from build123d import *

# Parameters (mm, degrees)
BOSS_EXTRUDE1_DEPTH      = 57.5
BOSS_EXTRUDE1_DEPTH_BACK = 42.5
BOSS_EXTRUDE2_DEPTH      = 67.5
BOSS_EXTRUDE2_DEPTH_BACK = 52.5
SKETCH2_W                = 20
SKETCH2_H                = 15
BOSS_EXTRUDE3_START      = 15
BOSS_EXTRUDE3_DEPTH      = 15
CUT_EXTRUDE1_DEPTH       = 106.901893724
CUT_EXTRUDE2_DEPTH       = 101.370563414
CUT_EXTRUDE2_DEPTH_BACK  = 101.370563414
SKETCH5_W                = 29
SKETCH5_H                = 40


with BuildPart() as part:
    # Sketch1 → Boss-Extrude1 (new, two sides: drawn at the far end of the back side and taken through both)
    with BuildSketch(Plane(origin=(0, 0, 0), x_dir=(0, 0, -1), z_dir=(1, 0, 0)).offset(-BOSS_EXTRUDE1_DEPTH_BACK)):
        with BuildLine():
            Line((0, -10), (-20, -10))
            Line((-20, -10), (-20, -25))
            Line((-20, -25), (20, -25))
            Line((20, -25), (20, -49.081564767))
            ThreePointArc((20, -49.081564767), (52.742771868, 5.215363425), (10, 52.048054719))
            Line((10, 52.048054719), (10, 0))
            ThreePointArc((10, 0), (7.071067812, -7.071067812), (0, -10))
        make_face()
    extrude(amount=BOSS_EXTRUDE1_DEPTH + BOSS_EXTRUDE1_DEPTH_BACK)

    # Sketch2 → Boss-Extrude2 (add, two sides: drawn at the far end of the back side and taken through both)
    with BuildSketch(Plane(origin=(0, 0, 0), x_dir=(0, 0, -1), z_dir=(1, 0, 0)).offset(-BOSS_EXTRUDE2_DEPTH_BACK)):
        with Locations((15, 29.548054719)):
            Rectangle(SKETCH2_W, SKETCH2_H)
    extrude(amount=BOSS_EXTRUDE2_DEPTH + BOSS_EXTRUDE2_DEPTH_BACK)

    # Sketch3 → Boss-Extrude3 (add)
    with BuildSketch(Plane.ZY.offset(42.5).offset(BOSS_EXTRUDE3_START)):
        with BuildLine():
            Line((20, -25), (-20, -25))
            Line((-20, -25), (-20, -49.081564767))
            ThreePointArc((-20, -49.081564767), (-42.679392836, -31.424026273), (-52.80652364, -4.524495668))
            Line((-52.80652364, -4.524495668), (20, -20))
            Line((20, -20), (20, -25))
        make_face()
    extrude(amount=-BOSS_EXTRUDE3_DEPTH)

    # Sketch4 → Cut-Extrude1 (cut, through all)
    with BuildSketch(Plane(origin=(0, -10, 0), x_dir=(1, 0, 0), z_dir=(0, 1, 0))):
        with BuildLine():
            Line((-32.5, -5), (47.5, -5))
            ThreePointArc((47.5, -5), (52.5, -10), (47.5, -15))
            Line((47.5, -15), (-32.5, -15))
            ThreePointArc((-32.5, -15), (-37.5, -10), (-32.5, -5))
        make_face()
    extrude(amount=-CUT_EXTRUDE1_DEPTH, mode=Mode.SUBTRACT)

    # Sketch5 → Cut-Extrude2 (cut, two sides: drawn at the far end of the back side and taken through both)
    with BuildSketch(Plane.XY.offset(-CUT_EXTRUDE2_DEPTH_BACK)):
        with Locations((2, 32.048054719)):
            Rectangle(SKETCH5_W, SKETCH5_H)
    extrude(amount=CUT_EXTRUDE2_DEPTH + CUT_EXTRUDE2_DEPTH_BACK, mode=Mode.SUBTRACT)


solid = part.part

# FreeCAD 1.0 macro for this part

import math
import FreeCAD as App
import Part
import Sketcher

V = App.Vector
Q = App.Units.Quantity


def add_polygon(sketch, points):
    """Adds a closed chain of lines whose ends are joined by coincident constraints."""
    first, n = sketch.GeometryCount, len(points)
    for a, b in zip(points, points[1:] + points[:1]):
        sketch.addGeometry(Part.LineSegment(App.Vector(*a, 0), App.Vector(*b, 0)), False)
    for i in range(n):
        sketch.addConstraint(Sketcher.Constraint("Coincident", first + i, 2, first + (i + 1) % n, 1))

doc = App.newDocument("Part")
body = doc.addObject("PartDesign::Body", "Body")

sketch1 = body.newObject("Sketcher::SketchObject", "Sketch")
sketch1.AttachmentSupport = (doc.getObject("YZ_Plane"), [""])
sketch1.MapMode = "FlatFace"
sketch1.addGeometry(Part.LineSegment(V(-10, 0, 0), V(-10, 20, 0)), False)
sketch1.addGeometry(Part.LineSegment(V(-10, 20, 0), V(-25, 20, 0)), False)
sketch1.addGeometry(Part.LineSegment(V(-25, 20, 0), V(-25, -20, 0)), False)
sketch1.addGeometry(Part.LineSegment(V(-25, -20, 0), V(-49, -20, 0)), False)
sketch1.addGeometry(Part.ArcOfCircle(Part.Circle(V(0, 0, 0), V(0, 0, 1), 53), math.radians(-158), math.radians(-11)), False)
sketch1.addGeometry(Part.LineSegment(V(52, -10, 0), V(0, -10, 0)), False)
sketch1.addGeometry(Part.ArcOfCircle(Part.Circle(V(0, 0, 0), V(0, 0, 1), 10), math.radians(180), math.radians(270)), False)
sketch1.addConstraint(Sketcher.Constraint("Coincident", 0, 2, 1, 1))
sketch1.addConstraint(Sketcher.Constraint("Coincident", 1, 2, 2, 1))
sketch1.addConstraint(Sketcher.Constraint("Coincident", 2, 2, 3, 1))
sketch1.addConstraint(Sketcher.Constraint("Coincident", 3, 2, 4, 1))
sketch1.addConstraint(Sketcher.Constraint("Coincident", 4, 2, 5, 1))
sketch1.addConstraint(Sketcher.Constraint("Tangent", 5, 2, 6, 2))
sketch1.addConstraint(Sketcher.Constraint("Tangent", 6, 1, 0, 1))
sketch1.addConstraint(Sketcher.Constraint("Vertical", 0))
sketch1.addConstraint(Sketcher.Constraint("Horizontal", 1))
sketch1.addConstraint(Sketcher.Constraint("Vertical", 2))
sketch1.addConstraint(Sketcher.Constraint("Horizontal", 3))
sketch1.addConstraint(Sketcher.Constraint("Horizontal", 5))
sketch1.addConstraint(Sketcher.Constraint("Coincident", 4, 3, -1, 1))
sketch1.addConstraint(Sketcher.Constraint("Coincident", 6, 3, -1, 1))
sketch1.addConstraint(Sketcher.Constraint("Radius", 4, Q("53 mm")))
sketch1.addConstraint(Sketcher.Constraint("Radius", 6, Q("10 mm")))
sketch1.addConstraint(Sketcher.Constraint("DistanceX", 1, 2, 1, 1, Q("15 mm")))
sketch1.addConstraint(Sketcher.Constraint("DistanceY", 0, 1, 0, 2, Q("20 mm")))
sketch1.addConstraint(Sketcher.Constraint("DistanceY", 2, 2, 2, 1, Q("40 mm")))
pad1 = body.newObject("PartDesign::Pad", "Pad")
pad1.Profile = sketch1
pad1.Type = "TwoLengths"
pad1.Length = 57.5
pad1.Length2 = 42.5

sketch2 = body.newObject("Sketcher::SketchObject", "Sketch001")
sketch2.AttachmentSupport = (doc.getObject("YZ_Plane"), [""])
sketch2.MapMode = "FlatFace"
add_polygon(sketch2, [(37, -5), (22, -5), (22, -25), (37, -25)])
sketch2.addConstraint(Sketcher.Constraint("Horizontal", 0))
sketch2.addConstraint(Sketcher.Constraint("Vertical", 1))
sketch2.addConstraint(Sketcher.Constraint("Horizontal", 2))
sketch2.addConstraint(Sketcher.Constraint("Vertical", 3))
sketch2.addConstraint(Sketcher.Constraint("DistanceX", 0, 2, 0, 1, Q("15 mm")))
sketch2.addConstraint(Sketcher.Constraint("DistanceY", 1, 2, 1, 1, Q("20 mm")))
sketch2.addConstraint(Sketcher.Constraint("DistanceY", 0, 2, -1, 1, Q("5 mm")))
sketch2.addConstraint(Sketcher.Constraint("DistanceX", -1, 1, 0, 2, Q("22.048055 mm")))
pad2 = body.newObject("PartDesign::Pad", "Pad001")
pad2.Profile = sketch2
pad2.Type = "TwoLengths"
pad2.Length = 67.5
pad2.Length2 = 52.5

sketch3 = body.newObject("Sketcher::SketchObject", "Sketch002")
sketch3.AttachmentSupport = (doc.getObject("YZ_Plane"), [""])
sketch3.MapMode = "FlatFace"
sketch3.AttachmentOffset = App.Placement(V(0, 0, -57.5), App.Rotation())
sketch3.addGeometry(Part.LineSegment(V(-25, -20, 0), V(-25, 20, 0)), False)
sketch3.addGeometry(Part.LineSegment(V(-25, 20, 0), V(-20, 20, 0)), False)
sketch3.addGeometry(Part.LineSegment(V(-20, 20, 0), V(-5, -53, 0)), False)
sketch3.addGeometry(Part.ArcOfCircle(Part.Circle(V(0, 0, 0), V(0, 0, 1), 53), math.radians(-158), math.radians(-95)), False)
sketch3.addGeometry(Part.LineSegment(V(-49, -20, 0), V(-25, -20, 0)), False)
sketch3.addConstraint(Sketcher.Constraint("Coincident", 0, 2, 1, 1))
sketch3.addConstraint(Sketcher.Constraint("Coincident", 1, 2, 2, 1))
sketch3.addConstraint(Sketcher.Constraint("Coincident", 2, 2, 3, 2))
sketch3.addConstraint(Sketcher.Constraint("Coincident", 3, 1, 4, 1))
sketch3.addConstraint(Sketcher.Constraint("Coincident", 4, 2, 0, 1))
sketch3.addConstraint(Sketcher.Constraint("Vertical", 0))
sketch3.addConstraint(Sketcher.Constraint("Horizontal", 1))
sketch3.addConstraint(Sketcher.Constraint("Horizontal", 4))
sketch3.addConstraint(Sketcher.Constraint("Coincident", 3, 3, -1, 1))
sketch3.addConstraint(Sketcher.Constraint("Radius", 3, Q("53 mm")))
sketch3.addConstraint(Sketcher.Constraint("DistanceX", 1, 1, 1, 2, Q("5 mm")))
sketch3.addConstraint(Sketcher.Constraint("DistanceY", 0, 1, 0, 2, Q("40 mm")))
sketch3.addConstraint(Sketcher.Constraint("Angle", 2, Q("-78 deg")))
sketch3.addConstraint(Sketcher.Constraint("DistanceX", 0, 2, -1, 1, Q("25 mm")))
sketch3.addConstraint(Sketcher.Constraint("DistanceY", -1, 1, 0, 2, Q("20 mm")))
pad3 = body.newObject("PartDesign::Pad", "Pad002")
pad3.Profile = sketch3
pad3.Length = 15

sketch4 = body.newObject("Sketcher::SketchObject", "Sketch003")
sketch4.AttachmentSupport = (doc.getObject("XZ_Plane"), [""])
sketch4.MapMode = "FlatFace"
sketch4.AttachmentOffset = App.Placement(V(0, 0, 10), App.Rotation())
sketch4.addGeometry(Part.LineSegment(V(48, 5, 0), V(-32, 5, 0)), False)
sketch4.addGeometry(Part.ArcOfCircle(Part.Circle(V(-32, 10, 0), V(0, 0, 1), 5), math.radians(90), math.radians(270)), False)
sketch4.addGeometry(Part.LineSegment(V(-32, 15, 0), V(48, 15, 0)), False)
sketch4.addGeometry(Part.ArcOfCircle(Part.Circle(V(48, 10, 0), V(0, 0, 1), 5), math.radians(-90), math.radians(90)), False)
sketch4.addConstraint(Sketcher.Constraint("Tangent", 0, 2, 1, 2))
sketch4.addConstraint(Sketcher.Constraint("Tangent", 1, 1, 2, 1))
sketch4.addConstraint(Sketcher.Constraint("Tangent", 2, 2, 3, 2))
sketch4.addConstraint(Sketcher.Constraint("Tangent", 3, 1, 0, 1))
sketch4.addConstraint(Sketcher.Constraint("Horizontal", 0))
sketch4.addConstraint(Sketcher.Constraint("Horizontal", 2))
sketch4.addConstraint(Sketcher.Constraint("Radius", 1, Q("5 mm")))
sketch4.addConstraint(Sketcher.Constraint("DistanceX", 0, 2, 0, 1, Q("80 mm")))
sketch4.addConstraint(Sketcher.Constraint("DistanceY", -1, 1, 1, 3, Q("10 mm")))
sketch4.addConstraint(Sketcher.Constraint("DistanceX", 1, 3, -1, 1, Q("32.5 mm")))
pocket1 = body.newObject("PartDesign::Pocket", "Pocket")
pocket1.Profile = sketch4
pocket1.Type = "ThroughAll"
pocket1.Reversed = True

sketch5 = body.newObject("Sketcher::SketchObject", "Sketch004")
sketch5.AttachmentSupport = (doc.getObject("XY_Plane"), [""])
sketch5.MapMode = "FlatFace"
add_polygon(sketch5, [(-12, 52), (-12, 12), (16, 12), (16, 52)])
sketch5.addConstraint(Sketcher.Constraint("Vertical", 0))
sketch5.addConstraint(Sketcher.Constraint("Horizontal", 1))
sketch5.addConstraint(Sketcher.Constraint("Vertical", 2))
sketch5.addConstraint(Sketcher.Constraint("Horizontal", 3))
sketch5.addConstraint(Sketcher.Constraint("DistanceX", 1, 1, 1, 2, Q("29 mm")))
sketch5.addConstraint(Sketcher.Constraint("DistanceY", 0, 2, 0, 1, Q("40 mm")))
sketch5.addConstraint(Sketcher.Constraint("DistanceX", 0, 2, -1, 1, Q("12.5 mm")))
sketch5.addConstraint(Sketcher.Constraint("DistanceY", -1, 1, 0, 2, Q("12.048055 mm")))
pocket2 = body.newObject("PartDesign::Pocket", "Pocket001")
pocket2.Profile = sketch5
pocket2.Type = "ThroughAll"
pocket2.Midplane = True

doc.recompute()
